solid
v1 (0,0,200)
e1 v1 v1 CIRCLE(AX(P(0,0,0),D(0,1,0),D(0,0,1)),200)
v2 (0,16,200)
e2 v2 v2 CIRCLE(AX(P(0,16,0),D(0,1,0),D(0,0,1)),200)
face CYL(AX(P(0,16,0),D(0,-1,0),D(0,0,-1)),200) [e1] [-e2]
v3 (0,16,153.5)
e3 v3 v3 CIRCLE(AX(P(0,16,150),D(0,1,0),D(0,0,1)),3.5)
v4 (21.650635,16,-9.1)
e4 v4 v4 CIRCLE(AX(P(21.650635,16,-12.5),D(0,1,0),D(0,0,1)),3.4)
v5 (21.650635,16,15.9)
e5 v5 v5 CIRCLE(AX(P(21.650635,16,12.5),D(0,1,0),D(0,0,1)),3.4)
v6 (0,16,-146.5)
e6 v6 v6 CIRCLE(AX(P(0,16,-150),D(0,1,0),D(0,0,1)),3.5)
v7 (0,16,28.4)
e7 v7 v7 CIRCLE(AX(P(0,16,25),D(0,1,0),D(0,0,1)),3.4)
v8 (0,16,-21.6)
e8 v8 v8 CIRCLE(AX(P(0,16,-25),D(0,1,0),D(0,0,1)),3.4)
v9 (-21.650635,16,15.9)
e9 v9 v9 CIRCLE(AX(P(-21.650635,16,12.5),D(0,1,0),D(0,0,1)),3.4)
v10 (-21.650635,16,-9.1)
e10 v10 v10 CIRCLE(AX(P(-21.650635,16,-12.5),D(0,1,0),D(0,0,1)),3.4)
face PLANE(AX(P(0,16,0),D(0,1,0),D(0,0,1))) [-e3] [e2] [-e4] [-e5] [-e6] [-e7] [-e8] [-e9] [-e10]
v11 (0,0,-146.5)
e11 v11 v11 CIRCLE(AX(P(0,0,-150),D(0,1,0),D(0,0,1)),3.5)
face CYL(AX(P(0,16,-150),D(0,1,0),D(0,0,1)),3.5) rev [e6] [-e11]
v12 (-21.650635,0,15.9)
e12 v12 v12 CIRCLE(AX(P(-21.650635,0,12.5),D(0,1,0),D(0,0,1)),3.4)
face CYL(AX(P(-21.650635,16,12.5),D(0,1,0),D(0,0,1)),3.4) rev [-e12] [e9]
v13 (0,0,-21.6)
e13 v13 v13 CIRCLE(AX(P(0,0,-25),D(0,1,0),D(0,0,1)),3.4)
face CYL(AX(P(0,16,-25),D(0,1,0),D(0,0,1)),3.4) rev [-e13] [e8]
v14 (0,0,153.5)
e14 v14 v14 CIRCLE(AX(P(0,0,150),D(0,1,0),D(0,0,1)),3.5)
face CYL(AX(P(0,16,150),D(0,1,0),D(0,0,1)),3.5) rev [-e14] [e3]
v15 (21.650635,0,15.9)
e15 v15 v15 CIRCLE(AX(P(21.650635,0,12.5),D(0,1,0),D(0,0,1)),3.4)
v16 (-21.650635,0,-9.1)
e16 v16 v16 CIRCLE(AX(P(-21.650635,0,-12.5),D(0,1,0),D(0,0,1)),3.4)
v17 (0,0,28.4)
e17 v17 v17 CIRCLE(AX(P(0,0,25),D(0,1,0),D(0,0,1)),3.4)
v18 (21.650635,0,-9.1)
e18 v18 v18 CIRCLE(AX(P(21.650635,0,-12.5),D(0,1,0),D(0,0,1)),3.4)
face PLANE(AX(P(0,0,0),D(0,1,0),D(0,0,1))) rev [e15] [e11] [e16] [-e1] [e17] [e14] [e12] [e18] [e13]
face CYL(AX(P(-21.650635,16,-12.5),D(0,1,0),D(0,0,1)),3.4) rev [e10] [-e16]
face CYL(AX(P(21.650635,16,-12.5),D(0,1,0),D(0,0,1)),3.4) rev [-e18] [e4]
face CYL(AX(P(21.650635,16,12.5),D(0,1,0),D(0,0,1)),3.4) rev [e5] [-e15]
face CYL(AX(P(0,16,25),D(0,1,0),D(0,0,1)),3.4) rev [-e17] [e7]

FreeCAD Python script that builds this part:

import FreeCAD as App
import Part
import Sketcher

V = App.Vector
Q = App.Units.Quantity

doc = App.newDocument("Part")
body = doc.addObject("PartDesign::Body", "Body")

sketch1 = body.newObject("Sketcher::SketchObject", "Sketch")
sketch1.AttachmentSupport = (doc.getObject("XZ_Plane"), [""])
sketch1.MapMode = "FlatFace"
sketch1.addGeometry(Part.Circle(V(0, 0, 0), V(0, 0, 1), 200), False)
sketch1.addConstraint(Sketcher.Constraint("Coincident", 0, 3, -1, 1))
sketch1.addConstraint(Sketcher.Constraint("Diameter", 0, Q("400 mm")))
pad1 = body.newObject("PartDesign::Pad", "Pad")
pad1.Profile = sketch1
pad1.Length = 16
pad1.Reversed = True

sketch2 = body.newObject("Sketcher::SketchObject", "Sketch001")
sketch2.AttachmentSupport = (doc.getObject("XZ_Plane"), [""])
sketch2.MapMode = "FlatFace"
sketch2.AttachmentOffset = App.Placement(V(0, 0, -16), App.Rotation())
sketch2.addGeometry(Part.Circle(V(0, -25, 0), V(0, 0, 1), 3.4), False)
sketch2.addConstraint(Sketcher.Constraint("PointOnObject", 0, 3, -2))
sketch2.addConstraint(Sketcher.Constraint("Diameter", 0, Q("6.8 mm")))
sketch2.addConstraint(Sketcher.Constraint("DistanceY", 0, 3, -1, 1, Q("25 mm")))
doc.recompute()
hole = body.newObject("PartDesign::Hole", "Hole")
hole.Profile = sketch2
hole.ThreadType = "None"
hole.Diameter = 6.8
hole.DepthType = "ThroughAll"
hole.Reversed = True
doc.recompute()

polarpattern = body.newObject("PartDesign::PolarPattern", "PolarPattern")
polarpattern.Originals = [hole]
polarpattern.Axis = (doc.getObject("Y_Axis"), [""])
polarpattern.Angle = 360
polarpattern.Occurrences = 6
body.Tip = polarpattern

sketch3 = body.newObject("Sketcher::SketchObject", "Sketch002")
sketch3.AttachmentSupport = (doc.getObject("XZ_Plane"), [""])
sketch3.MapMode = "FlatFace"
sketch3.AttachmentOffset = App.Placement(V(0, 0, -16), App.Rotation())
sketch3.addGeometry(Part.Circle(V(0, -150, 0), V(0, 0, 1), 3.5), False)
sketch3.addGeometry(Part.Circle(V(0, 150, 0), V(0, 0, 1), 3.5), False)
sketch3.addConstraint(Sketcher.Constraint("Equal", 0, 1))
sketch3.addConstraint(Sketcher.Constraint("Symmetric", 0, 3, 1, 3, -1, 1))
sketch3.addConstraint(Sketcher.Constraint("PointOnObject", 0, 3, -2))
sketch3.addConstraint(Sketcher.Constraint("Diameter", 0, Q("7 mm")))
sketch3.addConstraint(Sketcher.Constraint("DistanceY", 0, 3, -1, 1, Q("150 mm")))
doc.recompute()
hole2 = body.newObject("PartDesign::Hole", "Hole001")
hole2.Profile = sketch3
hole2.ThreadType = "None"
hole2.Diameter = 7
hole2.DepthType = "ThroughAll"
hole2.Reversed = True

doc.recompute()
